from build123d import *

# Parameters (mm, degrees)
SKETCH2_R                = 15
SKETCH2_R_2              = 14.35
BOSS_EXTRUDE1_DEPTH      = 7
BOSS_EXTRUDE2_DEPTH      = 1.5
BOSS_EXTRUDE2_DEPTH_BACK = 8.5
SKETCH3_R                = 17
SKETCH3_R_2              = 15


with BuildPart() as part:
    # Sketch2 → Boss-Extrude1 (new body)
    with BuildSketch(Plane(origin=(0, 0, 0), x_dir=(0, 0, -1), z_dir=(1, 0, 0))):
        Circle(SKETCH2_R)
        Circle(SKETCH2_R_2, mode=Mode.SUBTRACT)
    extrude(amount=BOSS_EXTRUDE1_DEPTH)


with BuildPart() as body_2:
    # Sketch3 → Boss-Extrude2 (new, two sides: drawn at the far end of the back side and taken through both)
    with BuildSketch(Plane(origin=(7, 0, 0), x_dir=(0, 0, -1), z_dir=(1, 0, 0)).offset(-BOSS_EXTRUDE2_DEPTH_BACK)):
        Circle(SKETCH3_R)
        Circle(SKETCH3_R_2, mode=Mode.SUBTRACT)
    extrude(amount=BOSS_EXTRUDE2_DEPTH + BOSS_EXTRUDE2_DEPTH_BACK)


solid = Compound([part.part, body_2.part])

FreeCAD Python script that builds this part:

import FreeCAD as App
import Part
import Sketcher

V = App.Vector
Q = App.Units.Quantity

doc = App.newDocument("Part")
body = doc.addObject("PartDesign::Body", "Body")

# Sketch on YZ plane
sketch1 = body.newObject("Sketcher::SketchObject", "Sketch")
sketch1.AttachmentSupport = (doc.getObject("YZ_Plane"), [""])
sketch1.MapMode = "FlatFace"
sketch1.addGeometry(Part.Circle(V(0, 0, 0), V(0, 0, 1), 15), False)
sketch1.addGeometry(Part.Circle(V(0, 0, 0), V(0, 0, 1), 14), False)
sketch1.addConstraint(Sketcher.Constraint("Coincident", 0, 3, -1, 1))
sketch1.addConstraint(Sketcher.Constraint("Coincident", 1, 3, -1, 1))
sketch1.addConstraint(Sketcher.Constraint("Diameter", 0, Q("30 mm")))
sketch1.addConstraint(Sketcher.Constraint("Diameter", 1, Q("28.7 mm")))
pad1 = body.newObject("PartDesign::Pad", "Pad")
pad1.Profile = sketch1
pad1.Length = 7
body2 = doc.addObject("PartDesign::Body", "Body001")

# Sketch on YZ plane
sketch2 = body2.newObject("Sketcher::SketchObject", "Sketch001")
sketch2.AttachmentSupport = (doc.getObject("YZ_Plane001"), [""])
sketch2.MapMode = "FlatFace"
sketch2.AttachmentOffset = App.Placement(V(0, 0, 7), App.Rotation())
sketch2.addGeometry(Part.Circle(V(0, 0, 0), V(0, 0, 1), 17), False)
sketch2.addGeometry(Part.Circle(V(0, 0, 0), V(0, 0, 1), 15), False)
sketch2.addConstraint(Sketcher.Constraint("Coincident", 0, 3, -1, 1))
sketch2.addConstraint(Sketcher.Constraint("Coincident", 1, 3, -1, 1))
sketch2.addConstraint(Sketcher.Constraint("Diameter", 0, Q("34 mm")))
sketch2.addConstraint(Sketcher.Constraint("Diameter", 1, Q("30 mm")))
pad2 = body2.newObject("PartDesign::Pad", "Pad001")
pad2.Profile = sketch2
pad2.Type = "TwoLengths"
pad2.Length = 1.5
pad2.Length2 = 8.5

doc.recompute()
